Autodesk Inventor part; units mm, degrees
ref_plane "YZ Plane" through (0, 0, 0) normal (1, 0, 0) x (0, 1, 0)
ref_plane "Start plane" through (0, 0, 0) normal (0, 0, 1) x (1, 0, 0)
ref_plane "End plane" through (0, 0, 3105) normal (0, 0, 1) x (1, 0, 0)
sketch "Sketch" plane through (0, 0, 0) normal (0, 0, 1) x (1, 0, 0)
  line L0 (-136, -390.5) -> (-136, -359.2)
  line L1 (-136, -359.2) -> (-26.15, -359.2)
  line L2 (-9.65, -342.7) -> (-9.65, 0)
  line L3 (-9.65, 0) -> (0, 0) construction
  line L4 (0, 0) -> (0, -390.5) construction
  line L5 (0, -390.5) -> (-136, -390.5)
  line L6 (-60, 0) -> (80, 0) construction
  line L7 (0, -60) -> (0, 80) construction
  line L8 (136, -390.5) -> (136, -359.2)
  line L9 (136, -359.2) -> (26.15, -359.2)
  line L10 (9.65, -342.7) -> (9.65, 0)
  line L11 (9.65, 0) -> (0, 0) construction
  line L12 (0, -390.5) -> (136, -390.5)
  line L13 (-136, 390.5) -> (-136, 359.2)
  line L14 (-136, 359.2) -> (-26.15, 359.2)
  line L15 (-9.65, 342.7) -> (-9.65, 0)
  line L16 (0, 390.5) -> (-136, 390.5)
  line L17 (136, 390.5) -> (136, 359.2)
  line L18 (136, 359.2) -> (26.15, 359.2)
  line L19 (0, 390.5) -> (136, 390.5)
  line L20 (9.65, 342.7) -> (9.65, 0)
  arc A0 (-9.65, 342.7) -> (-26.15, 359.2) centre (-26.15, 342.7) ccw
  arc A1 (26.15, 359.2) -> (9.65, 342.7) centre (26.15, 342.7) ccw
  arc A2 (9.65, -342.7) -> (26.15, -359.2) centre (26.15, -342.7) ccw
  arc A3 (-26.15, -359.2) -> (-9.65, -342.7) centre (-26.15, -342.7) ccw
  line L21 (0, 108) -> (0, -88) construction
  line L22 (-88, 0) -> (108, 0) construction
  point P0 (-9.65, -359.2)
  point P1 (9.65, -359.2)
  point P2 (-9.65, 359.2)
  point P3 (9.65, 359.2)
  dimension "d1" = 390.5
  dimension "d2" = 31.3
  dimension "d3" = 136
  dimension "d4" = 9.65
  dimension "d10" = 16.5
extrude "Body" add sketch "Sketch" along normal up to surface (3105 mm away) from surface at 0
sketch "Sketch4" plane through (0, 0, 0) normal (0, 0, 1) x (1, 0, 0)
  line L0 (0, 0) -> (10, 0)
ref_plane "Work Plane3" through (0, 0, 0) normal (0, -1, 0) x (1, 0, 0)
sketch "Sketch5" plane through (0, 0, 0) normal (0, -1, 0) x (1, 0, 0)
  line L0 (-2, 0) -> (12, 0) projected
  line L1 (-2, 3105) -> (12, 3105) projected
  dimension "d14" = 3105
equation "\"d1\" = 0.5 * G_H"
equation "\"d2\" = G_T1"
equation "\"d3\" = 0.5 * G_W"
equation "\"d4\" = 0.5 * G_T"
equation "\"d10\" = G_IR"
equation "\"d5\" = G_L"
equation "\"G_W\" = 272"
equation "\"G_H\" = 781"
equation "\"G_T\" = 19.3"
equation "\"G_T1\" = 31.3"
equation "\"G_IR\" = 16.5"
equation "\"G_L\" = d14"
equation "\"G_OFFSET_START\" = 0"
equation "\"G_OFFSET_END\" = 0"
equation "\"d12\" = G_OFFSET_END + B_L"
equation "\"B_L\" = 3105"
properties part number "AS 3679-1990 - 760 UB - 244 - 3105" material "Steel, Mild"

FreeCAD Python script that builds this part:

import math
import FreeCAD as App
import Part
import Sketcher

V = App.Vector
Q = App.Units.Quantity

doc = App.newDocument("Part")
params = doc.addObject("Spreadsheet::Sheet", "Params")
for row, (alias, value) in enumerate([
    ("sketch1_radius", "16.5 mm"),
    ("sketch1_height", "31.3 mm"),
    ("pad1_length", "3105 mm"),
], start=1):
    params.set(f"A{row}", alias)
    params.set(f"B{row}", "=" + value)
    params.setAlias(f"B{row}", alias)

body = doc.addObject("PartDesign::Body", "Body")

# Sketch on XY plane
sketch1 = body.newObject("Sketcher::SketchObject", "Sketch")
sketch1.AttachmentSupport = (doc.getObject("XY_Plane"), [""])
sketch1.MapMode = "FlatFace"
sketch1.addGeometry([
    Part.LineSegment(V(-136, -359, 0), V(-136, -390, 0)),  # 0
    Part.LineSegment(V(-136, -390, 0), V(136, -390, 0)),  # 1
    Part.LineSegment(V(136, -390, 0), V(136, -359, 0)),  # 2
    Part.LineSegment(V(136, -359, 0), V(26, -359, 0)),  # 3
    Part.ArcOfCircle(Part.Circle(V(26, -343, 0), V(0, 0, 1), 16), math.radians(180), math.radians(270)),  # 4
    Part.LineSegment(V(10, -343, 0), V(10, 343, 0)),  # 5
    Part.ArcOfCircle(Part.Circle(V(26, 343, 0), V(0, 0, 1), 16), math.radians(90), math.radians(180)),  # 6
    Part.LineSegment(V(26, 359, 0), V(136, 359, 0)),  # 7
    Part.LineSegment(V(136, 359, 0), V(136, 390, 0)),  # 8
    Part.LineSegment(V(136, 390, 0), V(-136, 390, 0)),  # 9
    Part.LineSegment(V(-136, 390, 0), V(-136, 359, 0)),  # 10
    Part.LineSegment(V(-136, 359, 0), V(-26, 359, 0)),  # 11
    Part.ArcOfCircle(Part.Circle(V(-26, 343, 0), V(0, 0, 1), 16), math.radians(0), math.radians(90)),  # 12
    Part.LineSegment(V(-10, 343, 0), V(-10, -343, 0)),  # 13
    Part.ArcOfCircle(Part.Circle(V(-26, -343, 0), V(0, 0, 1), 16), math.radians(-90), math.radians(0)),  # 14
    Part.LineSegment(V(-26, -359, 0), V(-136, -359, 0)),  # 15
], False)
sketch1.addConstraint([
    Sketcher.Constraint("Coincident", 0, 2, 1, 1),
    Sketcher.Constraint("Coincident", 1, 2, 2, 1),
    Sketcher.Constraint("Coincident", 2, 2, 3, 1),
    Sketcher.Constraint("Tangent", 3, 2, 4, 2),
    Sketcher.Constraint("Tangent", 4, 1, 5, 1),
    Sketcher.Constraint("Tangent", 5, 2, 6, 2),
    Sketcher.Constraint("Tangent", 6, 1, 7, 1),
    Sketcher.Constraint("Coincident", 7, 2, 8, 1),
    Sketcher.Constraint("Coincident", 8, 2, 9, 1),
    Sketcher.Constraint("Coincident", 9, 2, 10, 1),
    Sketcher.Constraint("Coincident", 10, 2, 11, 1),
    Sketcher.Constraint("Tangent", 11, 2, 12, 2),
    Sketcher.Constraint("Tangent", 12, 1, 13, 1),
    Sketcher.Constraint("Tangent", 13, 2, 14, 2),
    Sketcher.Constraint("Tangent", 14, 1, 15, 1),
    Sketcher.Constraint("Coincident", 15, 2, 0, 1),
    Sketcher.Constraint("Vertical", 0),
    Sketcher.Constraint("Horizontal", 1),
    Sketcher.Constraint("Vertical", 2),
    Sketcher.Constraint("Horizontal", 3),
    Sketcher.Constraint("Vertical", 5),
    Sketcher.Constraint("Horizontal", 7),
    Sketcher.Constraint("Vertical", 8),
    Sketcher.Constraint("Horizontal", 9),
    Sketcher.Constraint("Vertical", 10),
    Sketcher.Constraint("Horizontal", 11),
    Sketcher.Constraint("Vertical", 13),
    Sketcher.Constraint("Horizontal", 15),
    Sketcher.Constraint("Equal", 4, 6),
    Sketcher.Constraint("Equal", 6, 12),
    Sketcher.Constraint("Equal", 12, 14),
    Sketcher.Constraint("Symmetric", 4, 3, 12, 3, -1, 1),
    Sketcher.Constraint("Symmetric", 0, 2, 8, 2, -1, 1),
    Sketcher.Constraint("Symmetric", 7, 2, 10, 2, -2),
    Sketcher.Constraint("Symmetric", 2, 2, 15, 2, -2),
    Sketcher.Constraint("Radius", 4, Q("16.5 mm")),
    Sketcher.Constraint("DistanceY", 0, 2, 0, 1, Q("31.3 mm")),
    Sketcher.Constraint("DistanceX", 0, 2, -1, 1, Q("136 mm")),
    Sketcher.Constraint("DistanceY", 0, 2, -1, 1, Q("390.5 mm")),
    Sketcher.Constraint("DistanceX", -1, 1, 4, 1, Q("9.65 mm")),
])
sketch1.setExpression("Constraints[35]", "Params.sketch1_radius")
sketch1.setExpression("Constraints[36]", "Params.sketch1_height")
pad1 = body.newObject("PartDesign::Pad", "Pad")
pad1.Profile = sketch1
pad1.setExpression("Length", "Params.pad1_length")

doc.recompute()
